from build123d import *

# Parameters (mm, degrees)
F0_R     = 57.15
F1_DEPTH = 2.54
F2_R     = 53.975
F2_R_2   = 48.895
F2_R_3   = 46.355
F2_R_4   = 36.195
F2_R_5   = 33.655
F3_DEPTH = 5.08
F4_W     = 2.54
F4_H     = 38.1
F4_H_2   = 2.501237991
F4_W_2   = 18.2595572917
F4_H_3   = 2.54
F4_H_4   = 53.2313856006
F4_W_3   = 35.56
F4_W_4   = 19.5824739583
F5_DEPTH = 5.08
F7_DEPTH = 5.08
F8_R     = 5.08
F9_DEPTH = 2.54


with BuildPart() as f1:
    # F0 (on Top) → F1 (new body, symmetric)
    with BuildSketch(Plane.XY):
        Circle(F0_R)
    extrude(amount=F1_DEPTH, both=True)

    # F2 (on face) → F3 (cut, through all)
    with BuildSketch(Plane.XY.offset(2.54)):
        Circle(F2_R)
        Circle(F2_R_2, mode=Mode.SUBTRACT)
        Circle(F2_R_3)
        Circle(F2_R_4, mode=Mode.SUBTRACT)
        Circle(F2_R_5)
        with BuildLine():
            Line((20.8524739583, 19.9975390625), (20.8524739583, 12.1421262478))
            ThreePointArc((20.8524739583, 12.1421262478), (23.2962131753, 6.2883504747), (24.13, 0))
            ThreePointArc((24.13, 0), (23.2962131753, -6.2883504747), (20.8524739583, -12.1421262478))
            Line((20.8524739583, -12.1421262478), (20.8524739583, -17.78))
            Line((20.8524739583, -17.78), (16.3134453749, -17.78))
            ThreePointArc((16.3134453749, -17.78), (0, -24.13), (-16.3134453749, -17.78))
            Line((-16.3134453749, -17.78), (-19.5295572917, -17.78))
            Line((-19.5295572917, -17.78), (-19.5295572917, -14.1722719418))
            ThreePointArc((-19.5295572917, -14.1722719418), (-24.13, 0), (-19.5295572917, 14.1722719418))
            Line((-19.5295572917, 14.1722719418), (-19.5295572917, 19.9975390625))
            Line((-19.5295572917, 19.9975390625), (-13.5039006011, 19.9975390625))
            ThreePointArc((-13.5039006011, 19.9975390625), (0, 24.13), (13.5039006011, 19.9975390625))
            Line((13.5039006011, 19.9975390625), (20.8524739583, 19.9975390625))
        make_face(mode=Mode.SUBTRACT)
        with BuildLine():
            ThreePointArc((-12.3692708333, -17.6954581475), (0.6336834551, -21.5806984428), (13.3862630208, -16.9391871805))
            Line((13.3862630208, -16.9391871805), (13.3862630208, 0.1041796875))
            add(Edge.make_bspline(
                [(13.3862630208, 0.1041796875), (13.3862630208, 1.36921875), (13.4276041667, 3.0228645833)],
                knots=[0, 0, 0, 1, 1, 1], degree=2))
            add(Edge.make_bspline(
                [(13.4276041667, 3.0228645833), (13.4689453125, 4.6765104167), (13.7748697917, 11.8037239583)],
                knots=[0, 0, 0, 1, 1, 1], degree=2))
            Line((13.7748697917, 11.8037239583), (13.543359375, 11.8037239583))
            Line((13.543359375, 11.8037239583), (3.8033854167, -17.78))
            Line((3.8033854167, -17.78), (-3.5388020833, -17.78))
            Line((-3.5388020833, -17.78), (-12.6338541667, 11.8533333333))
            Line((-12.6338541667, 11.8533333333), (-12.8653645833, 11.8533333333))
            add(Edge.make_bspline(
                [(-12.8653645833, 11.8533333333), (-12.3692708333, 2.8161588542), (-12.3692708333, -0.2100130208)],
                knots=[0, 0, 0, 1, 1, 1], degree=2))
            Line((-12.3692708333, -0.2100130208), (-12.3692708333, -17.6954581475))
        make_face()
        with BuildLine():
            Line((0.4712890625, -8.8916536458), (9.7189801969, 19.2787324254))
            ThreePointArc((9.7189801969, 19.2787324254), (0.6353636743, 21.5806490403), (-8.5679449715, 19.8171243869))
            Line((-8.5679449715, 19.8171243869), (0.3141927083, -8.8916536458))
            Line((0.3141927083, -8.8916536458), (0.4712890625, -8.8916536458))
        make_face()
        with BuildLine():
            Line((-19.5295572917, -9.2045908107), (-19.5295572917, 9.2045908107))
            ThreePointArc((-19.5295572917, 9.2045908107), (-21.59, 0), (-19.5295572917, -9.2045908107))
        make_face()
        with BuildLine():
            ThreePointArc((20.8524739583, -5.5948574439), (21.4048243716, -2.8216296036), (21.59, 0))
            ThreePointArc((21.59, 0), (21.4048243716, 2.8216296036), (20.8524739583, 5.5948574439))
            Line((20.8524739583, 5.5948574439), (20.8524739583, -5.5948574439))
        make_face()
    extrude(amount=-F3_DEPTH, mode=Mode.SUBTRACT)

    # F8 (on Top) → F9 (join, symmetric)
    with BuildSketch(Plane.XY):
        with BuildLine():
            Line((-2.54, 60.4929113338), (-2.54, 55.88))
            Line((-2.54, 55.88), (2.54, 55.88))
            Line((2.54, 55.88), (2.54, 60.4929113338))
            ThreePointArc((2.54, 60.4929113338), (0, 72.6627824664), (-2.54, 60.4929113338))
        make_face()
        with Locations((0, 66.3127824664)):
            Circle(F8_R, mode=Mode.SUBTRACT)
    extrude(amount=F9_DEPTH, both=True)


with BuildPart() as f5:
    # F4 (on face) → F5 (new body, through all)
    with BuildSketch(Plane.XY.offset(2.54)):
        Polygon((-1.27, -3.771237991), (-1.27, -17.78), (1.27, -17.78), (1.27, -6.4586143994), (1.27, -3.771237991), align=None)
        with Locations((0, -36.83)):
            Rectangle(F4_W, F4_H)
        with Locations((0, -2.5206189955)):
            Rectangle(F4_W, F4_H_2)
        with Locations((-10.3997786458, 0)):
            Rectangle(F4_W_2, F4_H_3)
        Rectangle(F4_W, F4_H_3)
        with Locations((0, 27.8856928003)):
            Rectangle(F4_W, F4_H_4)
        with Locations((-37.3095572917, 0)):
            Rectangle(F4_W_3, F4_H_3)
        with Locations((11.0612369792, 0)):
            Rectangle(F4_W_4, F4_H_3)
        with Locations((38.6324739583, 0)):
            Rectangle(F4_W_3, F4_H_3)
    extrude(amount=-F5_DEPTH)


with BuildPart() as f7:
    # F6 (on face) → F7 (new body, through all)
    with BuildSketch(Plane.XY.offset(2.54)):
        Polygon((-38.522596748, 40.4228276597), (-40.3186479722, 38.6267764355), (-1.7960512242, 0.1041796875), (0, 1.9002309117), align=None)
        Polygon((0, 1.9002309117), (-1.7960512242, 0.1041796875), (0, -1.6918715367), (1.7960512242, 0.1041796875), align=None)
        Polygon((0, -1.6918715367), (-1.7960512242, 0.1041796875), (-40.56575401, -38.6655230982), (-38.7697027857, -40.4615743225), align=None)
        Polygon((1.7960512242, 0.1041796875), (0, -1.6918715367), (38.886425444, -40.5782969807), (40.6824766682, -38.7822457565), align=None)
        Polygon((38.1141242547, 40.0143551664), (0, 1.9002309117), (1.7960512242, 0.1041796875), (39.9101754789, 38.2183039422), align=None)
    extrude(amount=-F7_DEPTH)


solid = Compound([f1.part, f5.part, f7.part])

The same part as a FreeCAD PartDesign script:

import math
import FreeCAD as App
import Part
import Sketcher
from FreeCAD import Vector
Q = App.Units.Quantity

doc = App.newDocument("Part")
body = doc.addObject("PartDesign::Body", "Body")
body.AllowCompound = True

# Sketch on XY plane
sketch1 = doc.addObject("Sketcher::SketchObject", "Sketch")
body.addObject(sketch1)
sketch1.AttachmentSupport = (doc.XY_Plane, [""])
sketch1.MapMode = "FlatFace"
sketch1.addGeometry(Part.Circle(Vector(0, 0, 0), Vector(0, 0, 1), 57.15), False)
sketch1.addConstraint(Sketcher.Constraint("Coincident", 0, 3, -1, 1))
sketch1.addConstraint(Sketcher.Constraint("Diameter", 0, Q("4.5 in")))
pad1 = doc.addObject("PartDesign::Pad", "Pad")
body.addObject(pad1)
pad1.Profile = sketch1
pad1.Length = Q("0.2 in")
pad1.Midplane = True

# Sketch on XY plane
sketch2 = doc.addObject("Sketcher::SketchObject", "Sketch001")
body.addObject(sketch2)
sketch2.AttachmentSupport = (doc.XY_Plane, [""])
sketch2.MapMode = "FlatFace"
sketch2.AttachmentOffset = App.Placement(Vector(0, 0, 0.1 * 25.4), App.Rotation())
sketch2.addGeometry(Part.Circle(Vector(0, 0, 0), Vector(0, 0, 1), 53.975), False)
sketch2.addGeometry(Part.Circle(Vector(0, 0, 0), Vector(0, 0, 1), 48.895), False)
sketch2.addGeometry(Part.Circle(Vector(0, 0, 0), Vector(0, 0, 1), 46.355), False)
sketch2.addGeometry(Part.Circle(Vector(0, 0, 0), Vector(0, 0, 1), 36.195), False)
sketch2.addGeometry(Part.Circle(Vector(0, 0, 0), Vector(0, 0, 1), 33.655), False)
sketch2.addGeometry(Part.LineSegment(Vector(13.503901, 19.997539, 0), Vector(20.852474, 19.997539, 0)), False)
sketch2.addGeometry(Part.LineSegment(Vector(20.852474, 19.997539, 0), Vector(20.852474, 12.142126, 0)), False)
sketch2.addGeometry(Part.ArcOfCircle(Part.Circle(Vector(0, 0, 0), Vector(0, 0, 1), 24.13), math.radians(0), math.radians(30.21169)), False)
sketch2.addGeometry(Part.ArcOfCircle(Part.Circle(Vector(0, 0, 0), Vector(0, 0, 1), 24.13), math.radians(-30.21169), math.radians(0)), False)
sketch2.addGeometry(Part.LineSegment(Vector(20.852474, -12.142126, 0), Vector(20.852474, -17.78, 0)), False)
sketch2.addGeometry(Part.LineSegment(Vector(20.852474, -17.78, 0), Vector(16.313445, -17.78, 0)), False)
sketch2.addGeometry(Part.ArcOfCircle(Part.Circle(Vector(0, 0, 0), Vector(0, 0, 1), 24.13), math.radians(-132.536898), math.radians(-47.463102)), False)
sketch2.addGeometry(Part.LineSegment(Vector(-16.313445, -17.78, 0), Vector(-19.529557, -17.78, 0)), False)
sketch2.addGeometry(Part.LineSegment(Vector(-19.529557, -17.78, 0), Vector(-19.529557, -14.172272, 0)), False)
sketch2.addGeometry(Part.ArcOfCircle(Part.Circle(Vector(0, 0, 0), Vector(0, 0, 1), 24.13), math.radians(144.032238), math.radians(215.967762)), False)
sketch2.addGeometry(Part.LineSegment(Vector(-19.529557, 14.172272, 0), Vector(-19.529557, 19.997539, 0)), False)
sketch2.addGeometry(Part.LineSegment(Vector(-19.529557, 19.997539, 0), Vector(-13.503901, 19.997539, 0)), False)
sketch2.addGeometry(Part.ArcOfCircle(Part.Circle(Vector(0, 0, 0), Vector(0, 0, 1), 24.13), math.radians(55.969704), math.radians(124.030296)), False)
sketch2.addGeometry(Part.ArcOfCircle(Part.Circle(Vector(0, 0, 0), Vector(0, 0, 1), 21.59), math.radians(-124.953865), math.radians(-51.682299)), False)
sketch2.addGeometry(Part.LineSegment(Vector(13.386263, -16.939187, 0), Vector(13.386263, 0.10418, 0)), False)
sketch2.addGeometry(Part.BSplineCurve([Vector(13.386263, 0.10418, 0), Vector(13.386263, 1.369219, 0), Vector(13.427604, 3.022865, 0)], [3, 3], [0, 1], False, 2, [1, 1, 1], False), False)
sketch2.addGeometry(Part.BSplineCurve([Vector(13.427604, 3.022865, 0), Vector(13.468945, 4.67651, 0), Vector(13.77487, 11.803724, 0)], [3, 3], [0, 1], False, 2, [1, 1, 1], False), False)
sketch2.addGeometry(Part.LineSegment(Vector(13.77487, 11.803724, 0), Vector(13.543359, 11.803724, 0)), False)
sketch2.addGeometry(Part.LineSegment(Vector(13.543359, 11.803724, 0), Vector(3.803385, -17.78, 0)), False)
sketch2.addGeometry(Part.LineSegment(Vector(3.803385, -17.78, 0), Vector(-3.538802, -17.78, 0)), False)
sketch2.addGeometry(Part.LineSegment(Vector(-3.538802, -17.78, 0), Vector(-12.633854, 11.853333, 0)), False)
sketch2.addGeometry(Part.LineSegment(Vector(-12.633854, 11.853333, 0), Vector(-12.865365, 11.853333, 0)), False)
sketch2.addGeometry(Part.BSplineCurve([Vector(-12.865365, 11.853333, 0), Vector(-12.369271, 2.816159, 0), Vector(-12.369271, -0.210013, 0)], [3, 3], [0, 1], False, 2, [1, 1, 1], False), False)
sketch2.addGeometry(Part.LineSegment(Vector(-12.369271, -0.210013, 0), Vector(-12.369271, -17.695458, 0)), False)
sketch2.addGeometry(Part.LineSegment(Vector(0.471289, -8.891654, 0), Vector(9.71898, 19.278732, 0)), False)
sketch2.addGeometry(Part.ArcOfCircle(Part.Circle(Vector(0, 0, 0), Vector(0, 0, 1), 21.59), math.radians(63.245973), math.radians(113.381269)), False)
sketch2.addGeometry(Part.LineSegment(Vector(-8.567945, 19.817124, 0), Vector(0.314193, -8.891654, 0)), False)
sketch2.addGeometry(Part.LineSegment(Vector(0.314193, -8.891654, 0), Vector(0.471289, -8.891654, 0)), False)
sketch2.addGeometry(Part.LineSegment(Vector(-19.529557, -9.204591, 0), Vector(-19.529557, 9.204591, 0)), False)
sketch2.addGeometry(Part.ArcOfCircle(Part.Circle(Vector(0, 0, 0), Vector(0, 0, 1), 21.59), math.radians(154.764753), math.radians(205.235247)), False)
sketch2.addGeometry(Part.ArcOfCircle(Part.Circle(Vector(0, 0, 0), Vector(0, 0, 1), 21.59), math.radians(-15.019107), math.radians(0)), False)
sketch2.addGeometry(Part.ArcOfCircle(Part.Circle(Vector(0, 0, 0), Vector(0, 0, 1), 21.59), math.radians(0), math.radians(15.019107)), False)
sketch2.addGeometry(Part.LineSegment(Vector(20.852474, 5.594857, 0), Vector(20.852474, -5.594857, 0)), False)
sketch2.addConstraint(Sketcher.Constraint("Block", 20))
sketch2.addConstraint(Sketcher.Constraint("Block", 21))
sketch2.addConstraint(Sketcher.Constraint("Block", 27))
sketch2.addConstraint(Sketcher.Constraint("Coincident", 5, 2, 6, 1))
sketch2.addConstraint(Sketcher.Constraint("Coincident", 6, 2, 7, 2))
sketch2.addConstraint(Sketcher.Constraint("Tangent", 7, 1, 8, 2))
sketch2.addConstraint(Sketcher.Constraint("Coincident", 8, 1, 9, 1))
sketch2.addConstraint(Sketcher.Constraint("Coincident", 9, 2, 10, 1))
sketch2.addConstraint(Sketcher.Constraint("Coincident", 10, 2, 11, 2))
sketch2.addConstraint(Sketcher.Constraint("Coincident", 11, 1, 12, 1))
sketch2.addConstraint(Sketcher.Constraint("Coincident", 12, 2, 13, 1))
sketch2.addConstraint(Sketcher.Constraint("Coincident", 13, 2, 14, 2))
sketch2.addConstraint(Sketcher.Constraint("Coincident", 14, 1, 15, 1))
sketch2.addConstraint(Sketcher.Constraint("Coincident", 15, 2, 16, 1))
sketch2.addConstraint(Sketcher.Constraint("Coincident", 16, 2, 17, 2))
sketch2.addConstraint(Sketcher.Constraint("Coincident", 17, 1, 5, 1))
sketch2.addConstraint(Sketcher.Constraint("Coincident", 18, 2, 19, 1))
sketch2.addConstraint(Sketcher.Constraint("Coincident", 19, 2, 20, 1))
sketch2.addConstraint(Sketcher.Constraint("Coincident", 21, 2, 22, 1))
sketch2.addConstraint(Sketcher.Constraint("Coincident", 22, 2, 23, 1))
sketch2.addConstraint(Sketcher.Constraint("Coincident", 23, 2, 24, 1))
sketch2.addConstraint(Sketcher.Constraint("Coincident", 24, 2, 25, 1))
sketch2.addConstraint(Sketcher.Constraint("Coincident", 25, 2, 26, 1))
sketch2.addConstraint(Sketcher.Constraint("Coincident", 26, 2, 27, 1))
sketch2.addConstraint(Sketcher.Constraint("Coincident", 27, 2, 28, 1))
sketch2.addConstraint(Sketcher.Constraint("Coincident", 28, 2, 18, 1))
sketch2.addConstraint(Sketcher.Constraint("Coincident", 29, 2, 30, 1))
sketch2.addConstraint(Sketcher.Constraint("Coincident", 30, 2, 31, 1))
sketch2.addConstraint(Sketcher.Constraint("Coincident", 31, 2, 32, 1))
sketch2.addConstraint(Sketcher.Constraint("Coincident", 32, 2, 29, 1))
sketch2.addConstraint(Sketcher.Constraint("Coincident", 33, 1, 34, 2))
sketch2.addConstraint(Sketcher.Constraint("Coincident", 34, 1, 33, 2))
sketch2.addConstraint(Sketcher.Constraint("Tangent", 35, 2, 36, 1))
sketch2.addConstraint(Sketcher.Constraint("Coincident", 36, 2, 37, 1))
sketch2.addConstraint(Sketcher.Constraint("Coincident", 37, 2, 35, 1))
sketch2.addConstraint(Sketcher.Constraint("Horizontal", 5))
sketch2.addConstraint(Sketcher.Constraint("Vertical", 6))
sketch2.addConstraint(Sketcher.Constraint("Vertical", 9))
sketch2.addConstraint(Sketcher.Constraint("Horizontal", 10))
sketch2.addConstraint(Sketcher.Constraint("Horizontal", 12))
sketch2.addConstraint(Sketcher.Constraint("Vertical", 13))
sketch2.addConstraint(Sketcher.Constraint("Vertical", 15))
sketch2.addConstraint(Sketcher.Constraint("Horizontal", 16))
sketch2.addConstraint(Sketcher.Constraint("Vertical", 19))
sketch2.addConstraint(Sketcher.Constraint("Horizontal", 22))
sketch2.addConstraint(Sketcher.Constraint("Horizontal", 24))
sketch2.addConstraint(Sketcher.Constraint("Horizontal", 26))
sketch2.addConstraint(Sketcher.Constraint("Vertical", 28))
sketch2.addConstraint(Sketcher.Constraint("Horizontal", 32))
sketch2.addConstraint(Sketcher.Constraint("Vertical", 33))
sketch2.addConstraint(Sketcher.Constraint("Vertical", 37))
sketch2.addConstraint(Sketcher.Constraint("Coincident", 0, 3, -1, 1))
sketch2.addConstraint(Sketcher.Constraint("Coincident", 1, 3, -1, 1))
sketch2.addConstraint(Sketcher.Constraint("Coincident", 2, 3, -1, 1))
sketch2.addConstraint(Sketcher.Constraint("Coincident", 3, 3, -1, 1))
sketch2.addConstraint(Sketcher.Constraint("Coincident", 4, 3, -1, 1))
sketch2.addConstraint(Sketcher.Constraint("Coincident", 7, 3, -1, 1))
sketch2.addConstraint(Sketcher.Constraint("Coincident", 11, 3, -1, 1))
sketch2.addConstraint(Sketcher.Constraint("Coincident", 14, 3, -1, 1))
sketch2.addConstraint(Sketcher.Constraint("Coincident", 17, 3, -1, 1))
sketch2.addConstraint(Sketcher.Constraint("Coincident", 18, 3, -1, 1))
sketch2.addConstraint(Sketcher.Constraint("Coincident", 30, 3, -1, 1))
sketch2.addConstraint(Sketcher.Constraint("Coincident", 34, 3, -1, 1))
sketch2.addConstraint(Sketcher.Constraint("Coincident", 35, 3, -1, 1))
sketch2.addConstraint(Sketcher.Constraint("Equal", 7, 8))
sketch2.addConstraint(Sketcher.Constraint("Equal", 8, 11))
sketch2.addConstraint(Sketcher.Constraint("Equal", 11, 14))
sketch2.addConstraint(Sketcher.Constraint("Equal", 14, 17))
sketch2.addConstraint(Sketcher.Constraint("Equal", 18, 30))
sketch2.addConstraint(Sketcher.Constraint("Equal", 30, 34))
sketch2.addConstraint(Sketcher.Constraint("Equal", 34, 35))
sketch2.addConstraint(Sketcher.Constraint("Equal", 35, 36))
sketch2.addConstraint(Sketcher.Constraint("PointOnObject", 7, 1, -1))
sketch2.addConstraint(Sketcher.Constraint("PointOnObject", 35, 2, -1))
sketch2.addConstraint(Sketcher.Constraint("Horizontal", 10, 2, 11, 1))
sketch2.addConstraint(Sketcher.Constraint("Horizontal", 5, 2, 15, 2))
sketch2.addConstraint(Sketcher.Constraint("Horizontal", 12, 2, 23, 2))
sketch2.addConstraint(Sketcher.Constraint("Vertical", 6, 2, 8, 1))
sketch2.addConstraint(Sketcher.Constraint("Vertical", 13, 2, 14, 1))
sketch2.addConstraint(Sketcher.Constraint("Vertical", 15, 2, 33, 1))
sketch2.addConstraint(Sketcher.Constraint("Vertical", 9, 2, 36, 2))
sketch2.addConstraint(Sketcher.Constraint("Equal", 22, 26))
sketch2.addConstraint(Sketcher.Constraint("Diameter", 0, Q("4.25 in")))
sketch2.addConstraint(Sketcher.Constraint("Diameter", 1, Q("3.85 in")))
sketch2.addConstraint(Sketcher.Constraint("Diameter", 2, Q("3.65 in")))
sketch2.addConstraint(Sketcher.Constraint("Diameter", 3, Q("2.85 in")))
sketch2.addConstraint(Sketcher.Constraint("Diameter", 4, Q("2.65 in")))
sketch2.addConstraint(Sketcher.Constraint("Radius", 7, Q("0.95 in")))
sketch2.addConstraint(Sketcher.Constraint("Radius", 18, Q("0.85 in")))
sketch2.addConstraint(Sketcher.Constraint("DistanceY", 9, 2, -1, 1, Q("0.7 in")))
sketch2.addConstraint(Sketcher.Constraint("DistanceX", 10, 2, 10, 1, 4.539029))
sketch2.addConstraint(Sketcher.Constraint("DistanceX", 12, 2, 12, 1, 3.216112))
sketch2.addConstraint(Sketcher.Constraint("DistanceX", 22, 2, 22, 1, 0.23151))
sketch2.addConstraint(Sketcher.Constraint("DistanceX", 16, 2, -1, 1, 13.503901))
sketch2.addConstraint(Sketcher.Constraint("Distance", 25, 30.997652))
sketch2.addConstraint(Sketcher.Constraint("Distance", 29, 29.649459))
sketch2.addConstraint(Sketcher.Constraint("DistanceX", 24, 2, 24, 1, 7.342187))
sketch2.addConstraint(Sketcher.Constraint("DistanceX", 32, 1, 32, 2, 0.157096))
sketch2.addConstraint(Sketcher.Constraint("DistanceX", -1, 1, 29, 2, 9.71898))
sketch2.addConstraint(Sketcher.Constraint("DistanceX", -1, 1, 32, 2, 0.471289))
sketch2.addConstraint(Sketcher.Constraint("DistanceX", 25, 2, 30, 2, 4.065909))
pocket1 = doc.addObject("PartDesign::Pocket", "Pocket")
body.addObject(pocket1)
pocket1.Profile = sketch2
pocket1.Type = "ThroughAll"

# Sketch on XY plane
sketch3 = doc.addObject("Sketcher::SketchObject", "Sketch002")
body.addObject(sketch3)
sketch3.AttachmentSupport = (doc.XY_Plane, [""])
sketch3.MapMode = "FlatFace"
sketch3.addGeometry(Part.LineSegment(Vector(-2.54, 60.492911, 0), Vector(-2.54, 55.88, 0)), False)
sketch3.addGeometry(Part.LineSegment(Vector(-2.54, 55.88, 0), Vector(2.54, 55.88, 0)), False)
sketch3.addGeometry(Part.LineSegment(Vector(2.54, 55.88, 0), Vector(2.54, 60.492911, 0)), False)
sketch3.addGeometry(Part.ArcOfCircle(Part.Circle(Vector(0, 66.312782, 0), Vector(0, 0, 1), 6.35), math.radians(-66.421822), math.radians(246.421822)), False)
sketch3.addGeometry(Part.Circle(Vector(0, 66.312782, 0), Vector(0, 0, 1), 5.08), False)
sketch3.addConstraint(Sketcher.Constraint("Coincident", 0, 2, 1, 1))
sketch3.addConstraint(Sketcher.Constraint("Coincident", 1, 2, 2, 1))
sketch3.addConstraint(Sketcher.Constraint("Coincident", 2, 2, 3, 1))
sketch3.addConstraint(Sketcher.Constraint("Coincident", 3, 2, 0, 1))
sketch3.addConstraint(Sketcher.Constraint("Vertical", 0))
sketch3.addConstraint(Sketcher.Constraint("Horizontal", 1))
sketch3.addConstraint(Sketcher.Constraint("Vertical", 2))
sketch3.addConstraint(Sketcher.Constraint("Coincident", 4, 3, 3, 3))
sketch3.addConstraint(Sketcher.Constraint("Symmetric", 2, 2, 3, 2, -2))
sketch3.addConstraint(Sketcher.Constraint("Diameter", 4, Q("0.4 in")))
sketch3.addConstraint(Sketcher.Constraint("Radius", 3, Q("0.25 in")))
sketch3.addConstraint(Sketcher.Constraint("DistanceX", 1, 1, 1, 2, Q("0.2 in")))
sketch3.addConstraint(Sketcher.Constraint("DistanceY", -1, 1, 0, 2, Q("2.2 in")))
sketch3.addConstraint(Sketcher.Constraint("DistanceY", 0, 2, 0, 1, 4.612911))
pad2 = doc.addObject("PartDesign::Pad", "Pad001")
body.addObject(pad2)
pad2.Profile = sketch3
pad2.Length = Q("0.2 in")
pad2.Midplane = True
body2 = doc.addObject("PartDesign::Body", "Body001")

# Sketch on XY plane
sketch4 = doc.addObject("Sketcher::SketchObject", "Sketch003")
body2.addObject(sketch4)
sketch4.AttachmentSupport = (doc.getObject("XY_Plane001"), [""])
sketch4.MapMode = "FlatFace"
sketch4.AttachmentOffset = App.Placement(Vector(0, 0, 0.1 * 25.4), App.Rotation())
sketch4.addGeometry(Part.LineSegment(Vector(-1.27, -55.88, 0), Vector(1.27, -55.88, 0)), False)
sketch4.addGeometry(Part.LineSegment(Vector(1.27, -55.88, 0), Vector(1.27, -1.27, 0)), False)
sketch4.addGeometry(Part.LineSegment(Vector(1.27, -1.27, 0), Vector(56.412474, -1.27, 0)), False)
sketch4.addGeometry(Part.LineSegment(Vector(56.412474, -1.27, 0), Vector(56.412474, 1.27, 0)), False)
sketch4.addGeometry(Part.LineSegment(Vector(56.412474, 1.27, 0), Vector(1.27, 1.27, 0)), False)
sketch4.addGeometry(Part.LineSegment(Vector(1.27, 1.27, 0), Vector(1.27, 54.501386, 0)), False)
sketch4.addGeometry(Part.LineSegment(Vector(1.27, 54.501386, 0), Vector(-1.27, 54.501386, 0)), False)
sketch4.addGeometry(Part.LineSegment(Vector(-1.27, 54.501386, 0), Vector(-1.27, 1.27, 0)), False)
sketch4.addGeometry(Part.LineSegment(Vector(-1.27, 1.27, 0), Vector(-55.089557, 1.27, 0)), False)
sketch4.addGeometry(Part.LineSegment(Vector(-55.089557, 1.27, 0), Vector(-55.089557, -1.27, 0)), False)
sketch4.addGeometry(Part.LineSegment(Vector(-55.089557, -1.27, 0), Vector(-1.27, -1.27, 0)), False)
sketch4.addGeometry(Part.LineSegment(Vector(-1.27, -1.27, 0), Vector(-1.27, -55.88, 0)), False)
sketch4.addConstraint(Sketcher.Constraint("Coincident", 0, 2, 1, 1))
sketch4.addConstraint(Sketcher.Constraint("Coincident", 1, 2, 2, 1))
sketch4.addConstraint(Sketcher.Constraint("Coincident", 2, 2, 3, 1))
sketch4.addConstraint(Sketcher.Constraint("Coincident", 3, 2, 4, 1))
sketch4.addConstraint(Sketcher.Constraint("Coincident", 4, 2, 5, 1))
sketch4.addConstraint(Sketcher.Constraint("Coincident", 5, 2, 6, 1))
sketch4.addConstraint(Sketcher.Constraint("Coincident", 6, 2, 7, 1))
sketch4.addConstraint(Sketcher.Constraint("Coincident", 7, 2, 8, 1))
sketch4.addConstraint(Sketcher.Constraint("Coincident", 8, 2, 9, 1))
sketch4.addConstraint(Sketcher.Constraint("Coincident", 9, 2, 10, 1))
sketch4.addConstraint(Sketcher.Constraint("Coincident", 10, 2, 11, 1))
sketch4.addConstraint(Sketcher.Constraint("Coincident", 11, 2, 0, 1))
sketch4.addConstraint(Sketcher.Constraint("Horizontal", 0))
sketch4.addConstraint(Sketcher.Constraint("Vertical", 1))
sketch4.addConstraint(Sketcher.Constraint("Horizontal", 2))
sketch4.addConstraint(Sketcher.Constraint("Vertical", 3))
sketch4.addConstraint(Sketcher.Constraint("Horizontal", 4))
sketch4.addConstraint(Sketcher.Constraint("Vertical", 5))
sketch4.addConstraint(Sketcher.Constraint("Horizontal", 6))
sketch4.addConstraint(Sketcher.Constraint("Vertical", 7))
sketch4.addConstraint(Sketcher.Constraint("Horizontal", 8))
sketch4.addConstraint(Sketcher.Constraint("Vertical", 9))
sketch4.addConstraint(Sketcher.Constraint("Horizontal", 10))
sketch4.addConstraint(Sketcher.Constraint("Vertical", 11))
sketch4.addConstraint(Sketcher.Constraint("Symmetric", 1, 2, 7, 2, -1, 1))
sketch4.addConstraint(Sketcher.Constraint("Symmetric", 4, 2, 10, 2, -1, 1))
sketch4.addConstraint(Sketcher.Constraint("Symmetric", 4, 2, 7, 2, -2))
sketch4.addConstraint(Sketcher.Constraint("Equal", 6, 3))
sketch4.addConstraint(Sketcher.Constraint("DistanceX", 0, 1, 0, 2, Q("0.1 in")))
sketch4.addConstraint(Sketcher.Constraint("DistanceY", 1, 1, 1, 2, Q("2.15 in")))
sketch4.addConstraint(Sketcher.Constraint("DistanceX", 2, 1, 2, 2, 55.142474))
sketch4.addConstraint(Sketcher.Constraint("DistanceX", 8, 2, 8, 1, 53.819557))
sketch4.addConstraint(Sketcher.Constraint("DistanceY", 5, 1, 5, 2, 53.231386))
pad3 = doc.addObject("PartDesign::Pad", "Pad002")
body2.addObject(pad3)
pad3.Profile = sketch4
pad3.Length = Q("0.2 in")
pad3.Reversed = True
body3 = doc.addObject("PartDesign::Body", "Body002")

# Sketch on XY plane
sketch5 = doc.addObject("Sketcher::SketchObject", "Sketch004")
body3.addObject(sketch5)
sketch5.AttachmentSupport = (doc.getObject("XY_Plane002"), [""])
sketch5.MapMode = "FlatFace"
sketch5.AttachmentOffset = App.Placement(Vector(0, 0, 0.1 * 25.4), App.Rotation())
sketch5.addGeometry(Part.LineSegment(Vector(-38.522597, 40.422828, 0), Vector(-40.318648, 38.626776, 0)), False)
sketch5.addGeometry(Part.LineSegment(Vector(-40.318648, 38.626776, 0), Vector(-1.796051, 0.10418, 0)), False)
sketch5.addGeometry(Part.LineSegment(Vector(-1.796051, 0.10418, 0), Vector(-40.565754, -38.665523, 0)), False)
sketch5.addGeometry(Part.LineSegment(Vector(-40.565754, -38.665523, 0), Vector(-38.769703, -40.461574, 0)), False)
sketch5.addGeometry(Part.LineSegment(Vector(-38.769703, -40.461574, 0), Vector(0, -1.691872, 0)), False)
sketch5.addGeometry(Part.LineSegment(Vector(0, -1.691872, 0), Vector(38.886425, -40.578297, 0)), False)
sketch5.addGeometry(Part.LineSegment(Vector(38.886425, -40.578297, 0), Vector(40.682477, -38.782246, 0)), False)
sketch5.addGeometry(Part.LineSegment(Vector(40.682477, -38.782246, 0), Vector(1.796051, 0.10418, 0)), False)
sketch5.addGeometry(Part.LineSegment(Vector(1.796051, 0.10418, 0), Vector(39.910175, 38.218304, 0)), False)
sketch5.addGeometry(Part.LineSegment(Vector(39.910175, 38.218304, 0), Vector(38.114124, 40.014355, 0)), False)
sketch5.addGeometry(Part.LineSegment(Vector(38.114124, 40.014355, 0), Vector(0, 1.900231, 0)), False)
sketch5.addGeometry(Part.LineSegment(Vector(0, 1.900231, 0), Vector(-38.522597, 40.422828, 0)), False)
sketch5.addConstraint(Sketcher.Constraint("Coincident", 0, 2, 1, 1))
sketch5.addConstraint(Sketcher.Constraint("Coincident", 1, 2, 2, 1))
sketch5.addConstraint(Sketcher.Constraint("Coincident", 2, 2, 3, 1))
sketch5.addConstraint(Sketcher.Constraint("Coincident", 3, 2, 4, 1))
sketch5.addConstraint(Sketcher.Constraint("Coincident", 4, 2, 5, 1))
sketch5.addConstraint(Sketcher.Constraint("Coincident", 5, 2, 6, 1))
sketch5.addConstraint(Sketcher.Constraint("Coincident", 6, 2, 7, 1))
sketch5.addConstraint(Sketcher.Constraint("Coincident", 7, 2, 8, 1))
sketch5.addConstraint(Sketcher.Constraint("Coincident", 8, 2, 9, 1))
sketch5.addConstraint(Sketcher.Constraint("Coincident", 9, 2, 10, 1))
sketch5.addConstraint(Sketcher.Constraint("Coincident", 10, 2, 11, 1))
sketch5.addConstraint(Sketcher.Constraint("Coincident", 11, 2, 0, 1))
sketch5.addConstraint(Sketcher.Constraint("Symmetric", 1, 2, 7, 2, -2))
sketch5.addConstraint(Sketcher.Constraint("PointOnObject", 4, 2, -2))
sketch5.addConstraint(Sketcher.Constraint("PointOnObject", 10, 2, -2))
sketch5.addConstraint(Sketcher.Constraint("Perpendicular", 0, 1))
sketch5.addConstraint(Sketcher.Constraint("Perpendicular", 1, 2))
sketch5.addConstraint(Sketcher.Constraint("Perpendicular", 2, 3))
sketch5.addConstraint(Sketcher.Constraint("Perpendicular", 3, 4))
sketch5.addConstraint(Sketcher.Constraint("Perpendicular", 4, 5))
sketch5.addConstraint(Sketcher.Constraint("Perpendicular", 5, 6))
sketch5.addConstraint(Sketcher.Constraint("Perpendicular", 6, 7))
sketch5.addConstraint(Sketcher.Constraint("Perpendicular", 7, 8))
sketch5.addConstraint(Sketcher.Constraint("Perpendicular", 8, 9))
sketch5.addConstraint(Sketcher.Constraint("Perpendicular", 9, 10))
sketch5.addConstraint(Sketcher.Constraint("Perpendicular", 10, 11))
sketch5.addConstraint(Sketcher.Constraint("Equal", 0, 3))
sketch5.addConstraint(Sketcher.Constraint("Equal", 2, 4))
sketch5.addConstraint(Sketcher.Constraint("Equal", 5, 7))
sketch5.addConstraint(Sketcher.Constraint("Distance", 0, Q("0.1 in")))
sketch5.addConstraint(Sketcher.Constraint("DistanceY", 2, 2, 0, 2, 77.2923))
sketch5.addConstraint(Sketcher.Constraint("DistanceX", 0, 2, 7, 2, 42.114699))
sketch5.addConstraint(Sketcher.Constraint("DistanceX", 8, 2, 6, 2, 0.772301))
sketch5.addConstraint(Sketcher.Constraint("DistanceY", 5, 2, 8, 2, 78.796601))
sketch5.addConstraint(Sketcher.Constraint("DistanceY", -1, 1, 1, 2, 0.10418))
pad4 = doc.addObject("PartDesign::Pad", "Pad003")
body3.addObject(pad4)
pad4.Profile = sketch5
pad4.Length = Q("0.2 in")
pad4.Reversed = True

doc.recompute()
